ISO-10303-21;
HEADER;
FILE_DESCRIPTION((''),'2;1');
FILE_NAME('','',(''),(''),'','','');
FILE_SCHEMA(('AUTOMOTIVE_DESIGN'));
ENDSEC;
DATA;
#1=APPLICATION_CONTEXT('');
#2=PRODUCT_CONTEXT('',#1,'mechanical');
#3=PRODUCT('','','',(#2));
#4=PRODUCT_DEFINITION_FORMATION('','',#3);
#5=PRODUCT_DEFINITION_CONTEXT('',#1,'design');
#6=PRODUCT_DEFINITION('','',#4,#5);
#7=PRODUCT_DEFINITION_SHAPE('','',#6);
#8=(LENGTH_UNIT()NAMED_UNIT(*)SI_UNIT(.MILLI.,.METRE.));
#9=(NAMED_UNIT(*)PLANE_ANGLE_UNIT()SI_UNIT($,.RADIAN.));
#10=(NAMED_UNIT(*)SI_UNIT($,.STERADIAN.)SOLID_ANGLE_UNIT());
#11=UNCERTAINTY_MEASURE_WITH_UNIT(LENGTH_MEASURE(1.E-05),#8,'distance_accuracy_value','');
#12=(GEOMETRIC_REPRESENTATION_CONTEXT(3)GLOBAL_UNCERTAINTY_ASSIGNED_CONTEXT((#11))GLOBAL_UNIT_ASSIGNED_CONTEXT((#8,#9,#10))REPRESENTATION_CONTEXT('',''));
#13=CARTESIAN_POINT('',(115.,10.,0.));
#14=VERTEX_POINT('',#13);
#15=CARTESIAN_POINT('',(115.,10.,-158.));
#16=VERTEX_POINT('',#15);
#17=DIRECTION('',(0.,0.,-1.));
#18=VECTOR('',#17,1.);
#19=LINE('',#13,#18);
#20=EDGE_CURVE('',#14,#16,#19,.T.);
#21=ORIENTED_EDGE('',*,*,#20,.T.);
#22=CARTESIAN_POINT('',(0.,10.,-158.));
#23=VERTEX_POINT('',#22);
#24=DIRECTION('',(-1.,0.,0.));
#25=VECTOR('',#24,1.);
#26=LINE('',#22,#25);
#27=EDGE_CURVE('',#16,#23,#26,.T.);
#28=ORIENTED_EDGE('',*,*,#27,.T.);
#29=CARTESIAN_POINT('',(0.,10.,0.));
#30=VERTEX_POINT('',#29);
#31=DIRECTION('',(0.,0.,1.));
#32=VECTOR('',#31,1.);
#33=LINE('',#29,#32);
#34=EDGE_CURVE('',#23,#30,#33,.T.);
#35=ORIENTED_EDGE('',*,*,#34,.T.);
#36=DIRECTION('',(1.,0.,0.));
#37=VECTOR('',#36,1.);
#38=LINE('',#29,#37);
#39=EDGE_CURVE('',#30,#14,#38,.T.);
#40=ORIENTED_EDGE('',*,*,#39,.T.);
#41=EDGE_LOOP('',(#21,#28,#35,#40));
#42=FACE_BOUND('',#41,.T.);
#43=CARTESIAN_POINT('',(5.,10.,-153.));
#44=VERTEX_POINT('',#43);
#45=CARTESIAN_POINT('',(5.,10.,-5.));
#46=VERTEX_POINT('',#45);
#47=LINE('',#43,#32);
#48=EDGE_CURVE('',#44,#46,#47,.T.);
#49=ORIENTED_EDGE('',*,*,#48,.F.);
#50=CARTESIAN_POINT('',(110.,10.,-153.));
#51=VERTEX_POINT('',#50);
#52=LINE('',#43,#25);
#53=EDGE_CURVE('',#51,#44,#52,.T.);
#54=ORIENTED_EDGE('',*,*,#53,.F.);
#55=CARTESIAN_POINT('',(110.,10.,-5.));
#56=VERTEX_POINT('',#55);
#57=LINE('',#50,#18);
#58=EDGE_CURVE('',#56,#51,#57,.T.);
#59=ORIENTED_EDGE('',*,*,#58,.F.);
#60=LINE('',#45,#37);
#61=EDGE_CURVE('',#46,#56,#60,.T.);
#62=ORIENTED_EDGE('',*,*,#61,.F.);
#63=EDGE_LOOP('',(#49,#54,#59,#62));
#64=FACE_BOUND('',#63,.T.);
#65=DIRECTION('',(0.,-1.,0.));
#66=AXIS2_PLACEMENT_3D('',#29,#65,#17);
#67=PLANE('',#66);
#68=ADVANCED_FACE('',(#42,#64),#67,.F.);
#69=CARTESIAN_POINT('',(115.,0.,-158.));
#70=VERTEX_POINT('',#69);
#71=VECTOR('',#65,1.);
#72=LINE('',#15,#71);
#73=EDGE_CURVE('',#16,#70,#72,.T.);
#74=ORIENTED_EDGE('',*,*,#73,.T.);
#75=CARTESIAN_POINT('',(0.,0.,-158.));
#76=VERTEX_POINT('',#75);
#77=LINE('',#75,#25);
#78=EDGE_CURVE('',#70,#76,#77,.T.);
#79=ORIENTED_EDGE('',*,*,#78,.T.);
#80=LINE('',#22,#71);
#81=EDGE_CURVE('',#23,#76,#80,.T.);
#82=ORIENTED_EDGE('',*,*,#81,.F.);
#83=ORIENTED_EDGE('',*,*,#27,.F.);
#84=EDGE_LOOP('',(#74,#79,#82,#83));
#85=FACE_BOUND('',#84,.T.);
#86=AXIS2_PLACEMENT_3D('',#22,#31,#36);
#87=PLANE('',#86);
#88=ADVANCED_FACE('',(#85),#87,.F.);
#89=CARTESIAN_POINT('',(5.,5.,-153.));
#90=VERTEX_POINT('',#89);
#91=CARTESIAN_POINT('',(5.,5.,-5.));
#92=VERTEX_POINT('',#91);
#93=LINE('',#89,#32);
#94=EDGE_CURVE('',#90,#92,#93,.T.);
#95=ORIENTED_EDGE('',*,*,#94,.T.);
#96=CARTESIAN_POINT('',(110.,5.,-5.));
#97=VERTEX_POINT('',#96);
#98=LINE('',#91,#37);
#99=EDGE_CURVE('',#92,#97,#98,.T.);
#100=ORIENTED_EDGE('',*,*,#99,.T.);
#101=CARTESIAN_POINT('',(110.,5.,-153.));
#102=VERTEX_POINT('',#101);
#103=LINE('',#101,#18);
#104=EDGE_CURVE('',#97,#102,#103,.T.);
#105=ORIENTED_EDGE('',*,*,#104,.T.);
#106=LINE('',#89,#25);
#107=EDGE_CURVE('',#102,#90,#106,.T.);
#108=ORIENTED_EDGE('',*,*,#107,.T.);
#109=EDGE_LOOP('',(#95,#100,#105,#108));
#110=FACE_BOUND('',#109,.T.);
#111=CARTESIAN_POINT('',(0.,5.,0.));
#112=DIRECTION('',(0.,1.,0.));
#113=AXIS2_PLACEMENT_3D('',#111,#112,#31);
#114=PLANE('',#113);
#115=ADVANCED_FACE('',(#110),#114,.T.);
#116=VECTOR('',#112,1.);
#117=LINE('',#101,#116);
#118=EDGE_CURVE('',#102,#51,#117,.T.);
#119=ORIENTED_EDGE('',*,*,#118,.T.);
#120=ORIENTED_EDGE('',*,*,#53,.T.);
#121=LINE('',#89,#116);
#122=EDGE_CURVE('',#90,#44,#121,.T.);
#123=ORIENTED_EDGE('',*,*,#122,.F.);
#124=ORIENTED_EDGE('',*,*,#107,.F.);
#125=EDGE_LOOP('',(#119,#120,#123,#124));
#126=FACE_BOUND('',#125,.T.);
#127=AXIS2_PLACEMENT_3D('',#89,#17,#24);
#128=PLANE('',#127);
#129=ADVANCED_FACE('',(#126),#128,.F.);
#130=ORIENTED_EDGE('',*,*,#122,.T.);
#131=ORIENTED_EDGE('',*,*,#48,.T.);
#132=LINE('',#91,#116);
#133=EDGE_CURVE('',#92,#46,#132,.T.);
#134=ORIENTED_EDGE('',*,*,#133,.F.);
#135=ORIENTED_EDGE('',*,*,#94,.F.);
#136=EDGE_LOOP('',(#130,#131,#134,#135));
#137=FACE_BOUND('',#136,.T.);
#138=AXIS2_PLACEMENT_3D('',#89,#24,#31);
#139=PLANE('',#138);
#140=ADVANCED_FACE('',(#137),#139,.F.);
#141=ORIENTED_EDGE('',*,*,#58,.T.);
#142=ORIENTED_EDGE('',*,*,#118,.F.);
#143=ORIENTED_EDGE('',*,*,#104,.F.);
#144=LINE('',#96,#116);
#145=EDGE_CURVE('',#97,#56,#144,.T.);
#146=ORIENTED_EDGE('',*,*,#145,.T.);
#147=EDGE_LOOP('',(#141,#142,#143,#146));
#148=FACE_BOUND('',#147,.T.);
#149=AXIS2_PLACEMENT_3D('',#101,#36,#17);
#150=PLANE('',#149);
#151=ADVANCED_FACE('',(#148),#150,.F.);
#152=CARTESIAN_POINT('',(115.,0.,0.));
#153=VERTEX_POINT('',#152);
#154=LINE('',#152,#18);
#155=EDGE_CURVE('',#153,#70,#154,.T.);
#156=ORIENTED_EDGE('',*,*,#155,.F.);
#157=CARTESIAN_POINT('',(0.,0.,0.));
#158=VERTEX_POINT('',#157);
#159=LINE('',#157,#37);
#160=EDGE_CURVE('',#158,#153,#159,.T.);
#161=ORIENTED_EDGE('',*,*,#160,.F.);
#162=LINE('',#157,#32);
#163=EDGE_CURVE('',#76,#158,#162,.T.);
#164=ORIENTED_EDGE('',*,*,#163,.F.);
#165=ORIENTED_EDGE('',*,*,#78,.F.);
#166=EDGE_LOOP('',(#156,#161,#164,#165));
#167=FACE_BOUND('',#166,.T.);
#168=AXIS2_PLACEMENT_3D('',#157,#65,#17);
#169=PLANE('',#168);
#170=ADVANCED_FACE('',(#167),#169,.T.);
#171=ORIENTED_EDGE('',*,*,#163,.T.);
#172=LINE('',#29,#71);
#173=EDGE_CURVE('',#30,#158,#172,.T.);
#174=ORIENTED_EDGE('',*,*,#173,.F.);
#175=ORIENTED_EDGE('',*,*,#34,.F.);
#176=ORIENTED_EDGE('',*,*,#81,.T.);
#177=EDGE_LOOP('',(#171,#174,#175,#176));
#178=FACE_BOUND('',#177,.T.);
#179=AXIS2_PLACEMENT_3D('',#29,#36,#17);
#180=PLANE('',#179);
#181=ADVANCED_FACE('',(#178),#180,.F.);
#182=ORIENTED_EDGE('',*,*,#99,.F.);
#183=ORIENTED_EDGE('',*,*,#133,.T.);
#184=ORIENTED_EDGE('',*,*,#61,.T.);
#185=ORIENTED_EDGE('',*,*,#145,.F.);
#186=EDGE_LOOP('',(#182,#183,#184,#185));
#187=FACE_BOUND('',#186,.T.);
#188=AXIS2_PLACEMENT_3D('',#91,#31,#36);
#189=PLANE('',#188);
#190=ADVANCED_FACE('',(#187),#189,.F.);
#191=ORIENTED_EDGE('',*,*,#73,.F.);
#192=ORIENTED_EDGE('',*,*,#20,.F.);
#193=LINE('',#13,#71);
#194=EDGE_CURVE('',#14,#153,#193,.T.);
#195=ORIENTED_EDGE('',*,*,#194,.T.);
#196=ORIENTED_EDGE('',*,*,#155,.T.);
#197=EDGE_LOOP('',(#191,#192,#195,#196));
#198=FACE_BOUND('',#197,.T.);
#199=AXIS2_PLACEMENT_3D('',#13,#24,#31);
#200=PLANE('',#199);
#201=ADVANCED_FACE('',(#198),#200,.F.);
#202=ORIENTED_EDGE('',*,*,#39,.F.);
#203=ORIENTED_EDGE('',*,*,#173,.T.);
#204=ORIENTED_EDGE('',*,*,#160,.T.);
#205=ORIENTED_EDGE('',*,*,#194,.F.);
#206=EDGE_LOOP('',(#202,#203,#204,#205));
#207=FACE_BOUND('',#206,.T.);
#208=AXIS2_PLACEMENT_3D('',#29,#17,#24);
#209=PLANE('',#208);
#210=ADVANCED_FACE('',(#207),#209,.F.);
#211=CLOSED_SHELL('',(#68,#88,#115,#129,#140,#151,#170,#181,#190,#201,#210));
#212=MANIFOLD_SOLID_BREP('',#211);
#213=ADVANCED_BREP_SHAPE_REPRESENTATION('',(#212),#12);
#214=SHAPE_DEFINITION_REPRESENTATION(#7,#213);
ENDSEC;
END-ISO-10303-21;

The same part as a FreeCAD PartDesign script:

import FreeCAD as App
import Part
import Sketcher
from FreeCAD import Vector

doc = App.newDocument("Part")
body = doc.addObject("PartDesign::Body", "Body")

# Sketch on XZ plane
sketch1 = body.newObject("Sketcher::SketchObject", "Sketch")
sketch1.AttachmentSupport = (doc.getObject("XZ_Plane"), [""])
sketch1.MapMode = "FlatFace"
sketch1.addGeometry(Part.LineSegment(Vector(0, -158, 0), Vector(0, 0, 0)), False)
sketch1.addGeometry(Part.LineSegment(Vector(0, 0, 0), Vector(115, 0, 0)), False)
sketch1.addGeometry(Part.LineSegment(Vector(115, 0, 0), Vector(115, -158, 0)), False)
sketch1.addGeometry(Part.LineSegment(Vector(115, -158, 0), Vector(0, -158, 0)), False)
sketch1.addConstraint(Sketcher.Constraint("Coincident", 0, 2, 1, 1))
sketch1.addConstraint(Sketcher.Constraint("Coincident", 1, 2, 2, 1))
sketch1.addConstraint(Sketcher.Constraint("Coincident", 2, 2, 3, 1))
sketch1.addConstraint(Sketcher.Constraint("Coincident", 3, 2, 0, 1))
sketch1.addConstraint(Sketcher.Constraint("Vertical", 0))
sketch1.addConstraint(Sketcher.Constraint("Horizontal", 1))
sketch1.addConstraint(Sketcher.Constraint("Vertical", 2))
sketch1.addConstraint(Sketcher.Constraint("Horizontal", 3))
sketch1.addConstraint(Sketcher.Constraint("Coincident", 0, 2, -1, 1))
sketch1.addConstraint(Sketcher.Constraint("DistanceX", 1, 1, 1, 2, 115.0))
sketch1.addConstraint(Sketcher.Constraint("DistanceY", 0, 1, 0, 2, 158.0))
pad1 = body.newObject("PartDesign::Pad", "Pad")
pad1.Profile = sketch1
pad1.Length = 10
pad1.Reversed = True

# Sketch on XZ plane
sketch2 = body.newObject("Sketcher::SketchObject", "Sketch001")
sketch2.AttachmentSupport = (doc.getObject("XZ_Plane"), [""])
sketch2.MapMode = "FlatFace"
sketch2.AttachmentOffset = App.Placement(Vector(0, 0, -10), App.Rotation())
sketch2.addGeometry(Part.LineSegment(Vector(5, -153, 0), Vector(5, -5, 0)), False)
sketch2.addGeometry(Part.LineSegment(Vector(5, -5, 0), Vector(110, -5, 0)), False)
sketch2.addGeometry(Part.LineSegment(Vector(110, -5, 0), Vector(110, -153, 0)), False)
sketch2.addGeometry(Part.LineSegment(Vector(110, -153, 0), Vector(5, -153, 0)), False)
sketch2.addConstraint(Sketcher.Constraint("Coincident", 0, 2, 1, 1))
sketch2.addConstraint(Sketcher.Constraint("Coincident", 1, 2, 2, 1))
sketch2.addConstraint(Sketcher.Constraint("Coincident", 2, 2, 3, 1))
sketch2.addConstraint(Sketcher.Constraint("Coincident", 3, 2, 0, 1))
sketch2.addConstraint(Sketcher.Constraint("Vertical", 0))
sketch2.addConstraint(Sketcher.Constraint("Horizontal", 1))
sketch2.addConstraint(Sketcher.Constraint("Vertical", 2))
sketch2.addConstraint(Sketcher.Constraint("Horizontal", 3))
sketch2.addConstraint(Sketcher.Constraint("DistanceX", 1, 1, 1, 2, 105.0))
sketch2.addConstraint(Sketcher.Constraint("DistanceY", 0, 1, 0, 2, 148.0))
sketch2.addConstraint(Sketcher.Constraint("DistanceX", -1, 1, 0, 2, 5.0))
sketch2.addConstraint(Sketcher.Constraint("DistanceY", 0, 2, -1, 1, 5.0))
pocket1 = body.newObject("PartDesign::Pocket", "Pocket")
pocket1.Profile = sketch2
pocket1.Length = 5
pocket1.Reversed = True

doc.recompute()
